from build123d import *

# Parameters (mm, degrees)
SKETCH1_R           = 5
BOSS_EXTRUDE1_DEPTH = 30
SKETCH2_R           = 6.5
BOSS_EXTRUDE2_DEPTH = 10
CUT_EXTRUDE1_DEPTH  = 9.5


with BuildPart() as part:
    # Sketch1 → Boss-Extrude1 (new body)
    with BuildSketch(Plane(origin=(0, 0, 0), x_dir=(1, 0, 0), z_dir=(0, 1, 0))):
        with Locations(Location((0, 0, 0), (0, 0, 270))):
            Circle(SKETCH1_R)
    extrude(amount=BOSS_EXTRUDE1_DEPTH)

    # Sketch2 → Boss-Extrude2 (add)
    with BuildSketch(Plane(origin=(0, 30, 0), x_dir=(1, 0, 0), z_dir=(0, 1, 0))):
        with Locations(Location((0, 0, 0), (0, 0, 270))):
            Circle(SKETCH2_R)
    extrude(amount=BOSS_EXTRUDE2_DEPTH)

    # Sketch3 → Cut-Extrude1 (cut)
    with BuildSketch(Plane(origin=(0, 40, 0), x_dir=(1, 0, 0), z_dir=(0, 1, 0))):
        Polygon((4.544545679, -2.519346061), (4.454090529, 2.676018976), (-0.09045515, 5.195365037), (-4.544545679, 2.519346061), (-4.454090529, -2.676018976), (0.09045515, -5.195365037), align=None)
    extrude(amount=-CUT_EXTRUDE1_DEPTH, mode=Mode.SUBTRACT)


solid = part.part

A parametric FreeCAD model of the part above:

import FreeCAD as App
import Part
import Sketcher

doc = App.newDocument("Part")
params = doc.addObject("Spreadsheet::Sheet", "Params")
for row, (alias, value) in enumerate([
    ("sketch1_diameter", "10 mm"),
    ("pad1_length", "30 mm"),
    ("sketch2_diameter", "13 mm"),
    ("pad2_length", "10 mm"),
    ("pocket1_length", "9.5 mm"),
], start=1):
    params.set(f"A{row}", alias)
    params.set(f"B{row}", "=" + value)
    params.setAlias(f"B{row}", alias)

body = doc.addObject("PartDesign::Body", "Body")

# Sketch on XZ plane
sketch1 = body.newObject("Sketcher::SketchObject", "Sketch")
sketch1.AttachmentSupport = (doc.getObject("XZ_Plane"), [""])
sketch1.MapMode = "FlatFace"
sketch1.addGeometry(Part.Circle(App.Vector(0, 0, 0), App.Vector(0, 0, 1), 5), False)
sketch1.addConstraint(Sketcher.Constraint("Coincident", 0, 3, -1, 1))
sketch1.addConstraint(Sketcher.Constraint("Diameter", 0, 10.0))
sketch1.setExpression("Constraints[1]", "Params.sketch1_diameter")
pad1 = body.newObject("PartDesign::Pad", "Pad")
pad1.Profile = sketch1
pad1.setExpression("Length", "Params.pad1_length")
pad1.Reversed = True

# Sketch on XZ plane
sketch2 = body.newObject("Sketcher::SketchObject", "Sketch001")
sketch2.AttachmentSupport = (doc.getObject("XZ_Plane"), [""])
sketch2.MapMode = "FlatFace"
sketch2.AttachmentOffset = App.Placement(App.Vector(0, 0, -30), App.Rotation())
sketch2.addGeometry(Part.Circle(App.Vector(0, 0, 0), App.Vector(0, 0, 1), 6.5), False)
sketch2.addConstraint(Sketcher.Constraint("Coincident", 0, 3, -1, 1))
sketch2.addConstraint(Sketcher.Constraint("Diameter", 0, 13.0))
sketch2.setExpression("Constraints[1]", "Params.sketch2_diameter")
pad2 = body.newObject("PartDesign::Pad", "Pad001")
pad2.Profile = sketch2
pad2.setExpression("Length", "Params.pad2_length")
pad2.Reversed = True

# Sketch on XZ plane
sketch3 = body.newObject("Sketcher::SketchObject", "Sketch002")
sketch3.AttachmentSupport = (doc.getObject("XZ_Plane"), [""])
sketch3.MapMode = "FlatFace"
sketch3.AttachmentOffset = App.Placement(App.Vector(0, 0, -40), App.Rotation())
sketch3.addGeometry(Part.LineSegment(App.Vector(4.544546, 2.519346, 0), App.Vector(4.454091, -2.676019, 0)), False)
sketch3.addGeometry(Part.LineSegment(App.Vector(4.454091, -2.676019, 0), App.Vector(-0.090455, -5.195365, 0)), False)
sketch3.addGeometry(Part.LineSegment(App.Vector(-0.090455, -5.195365, 0), App.Vector(-4.544546, -2.519346, 0)), False)
sketch3.addGeometry(Part.LineSegment(App.Vector(-4.544546, -2.519346, 0), App.Vector(-4.454091, 2.676019, 0)), False)
sketch3.addGeometry(Part.LineSegment(App.Vector(-4.454091, 2.676019, 0), App.Vector(0.090455, 5.195365, 0)), False)
sketch3.addGeometry(Part.LineSegment(App.Vector(0.090455, 5.195365, 0), App.Vector(4.544546, 2.519346, 0)), False)
sketch3.addConstraint(Sketcher.Constraint("Coincident", 0, 2, 1, 1))
sketch3.addConstraint(Sketcher.Constraint("Coincident", 1, 2, 2, 1))
sketch3.addConstraint(Sketcher.Constraint("Coincident", 2, 2, 3, 1))
sketch3.addConstraint(Sketcher.Constraint("Coincident", 3, 2, 4, 1))
sketch3.addConstraint(Sketcher.Constraint("Coincident", 4, 2, 5, 1))
sketch3.addConstraint(Sketcher.Constraint("Coincident", 5, 2, 0, 1))
sketch3.addConstraint(Sketcher.Constraint("Symmetric", 0, 2, 3, 2, -1, 1))
sketch3.addConstraint(Sketcher.Constraint("Symmetric", 1, 2, 4, 2, -1, 1))
sketch3.addConstraint(Sketcher.Constraint("Symmetric", 2, 2, 5, 2, -1, 1))
sketch3.addConstraint(Sketcher.Constraint("Equal", 0, 1))
sketch3.addConstraint(Sketcher.Constraint("Equal", 1, 2))
sketch3.addConstraint(Sketcher.Constraint("DistanceX", 2, 2, 4, 2, 4.635001))
sketch3.addConstraint(Sketcher.Constraint("DistanceX", -1, 1, 0, 2, 4.454091))
sketch3.addConstraint(Sketcher.Constraint("DistanceY", 0, 2, -1, 1, 2.676019))
sketch3.addConstraint(Sketcher.Constraint("DistanceX", 2, 2, 1, 2, 4.454091))
pocket1 = body.newObject("PartDesign::Pocket", "Pocket")
pocket1.Profile = sketch3
pocket1.setExpression("Length", "Params.pocket1_length")
pocket1.Reversed = True

doc.recompute()
